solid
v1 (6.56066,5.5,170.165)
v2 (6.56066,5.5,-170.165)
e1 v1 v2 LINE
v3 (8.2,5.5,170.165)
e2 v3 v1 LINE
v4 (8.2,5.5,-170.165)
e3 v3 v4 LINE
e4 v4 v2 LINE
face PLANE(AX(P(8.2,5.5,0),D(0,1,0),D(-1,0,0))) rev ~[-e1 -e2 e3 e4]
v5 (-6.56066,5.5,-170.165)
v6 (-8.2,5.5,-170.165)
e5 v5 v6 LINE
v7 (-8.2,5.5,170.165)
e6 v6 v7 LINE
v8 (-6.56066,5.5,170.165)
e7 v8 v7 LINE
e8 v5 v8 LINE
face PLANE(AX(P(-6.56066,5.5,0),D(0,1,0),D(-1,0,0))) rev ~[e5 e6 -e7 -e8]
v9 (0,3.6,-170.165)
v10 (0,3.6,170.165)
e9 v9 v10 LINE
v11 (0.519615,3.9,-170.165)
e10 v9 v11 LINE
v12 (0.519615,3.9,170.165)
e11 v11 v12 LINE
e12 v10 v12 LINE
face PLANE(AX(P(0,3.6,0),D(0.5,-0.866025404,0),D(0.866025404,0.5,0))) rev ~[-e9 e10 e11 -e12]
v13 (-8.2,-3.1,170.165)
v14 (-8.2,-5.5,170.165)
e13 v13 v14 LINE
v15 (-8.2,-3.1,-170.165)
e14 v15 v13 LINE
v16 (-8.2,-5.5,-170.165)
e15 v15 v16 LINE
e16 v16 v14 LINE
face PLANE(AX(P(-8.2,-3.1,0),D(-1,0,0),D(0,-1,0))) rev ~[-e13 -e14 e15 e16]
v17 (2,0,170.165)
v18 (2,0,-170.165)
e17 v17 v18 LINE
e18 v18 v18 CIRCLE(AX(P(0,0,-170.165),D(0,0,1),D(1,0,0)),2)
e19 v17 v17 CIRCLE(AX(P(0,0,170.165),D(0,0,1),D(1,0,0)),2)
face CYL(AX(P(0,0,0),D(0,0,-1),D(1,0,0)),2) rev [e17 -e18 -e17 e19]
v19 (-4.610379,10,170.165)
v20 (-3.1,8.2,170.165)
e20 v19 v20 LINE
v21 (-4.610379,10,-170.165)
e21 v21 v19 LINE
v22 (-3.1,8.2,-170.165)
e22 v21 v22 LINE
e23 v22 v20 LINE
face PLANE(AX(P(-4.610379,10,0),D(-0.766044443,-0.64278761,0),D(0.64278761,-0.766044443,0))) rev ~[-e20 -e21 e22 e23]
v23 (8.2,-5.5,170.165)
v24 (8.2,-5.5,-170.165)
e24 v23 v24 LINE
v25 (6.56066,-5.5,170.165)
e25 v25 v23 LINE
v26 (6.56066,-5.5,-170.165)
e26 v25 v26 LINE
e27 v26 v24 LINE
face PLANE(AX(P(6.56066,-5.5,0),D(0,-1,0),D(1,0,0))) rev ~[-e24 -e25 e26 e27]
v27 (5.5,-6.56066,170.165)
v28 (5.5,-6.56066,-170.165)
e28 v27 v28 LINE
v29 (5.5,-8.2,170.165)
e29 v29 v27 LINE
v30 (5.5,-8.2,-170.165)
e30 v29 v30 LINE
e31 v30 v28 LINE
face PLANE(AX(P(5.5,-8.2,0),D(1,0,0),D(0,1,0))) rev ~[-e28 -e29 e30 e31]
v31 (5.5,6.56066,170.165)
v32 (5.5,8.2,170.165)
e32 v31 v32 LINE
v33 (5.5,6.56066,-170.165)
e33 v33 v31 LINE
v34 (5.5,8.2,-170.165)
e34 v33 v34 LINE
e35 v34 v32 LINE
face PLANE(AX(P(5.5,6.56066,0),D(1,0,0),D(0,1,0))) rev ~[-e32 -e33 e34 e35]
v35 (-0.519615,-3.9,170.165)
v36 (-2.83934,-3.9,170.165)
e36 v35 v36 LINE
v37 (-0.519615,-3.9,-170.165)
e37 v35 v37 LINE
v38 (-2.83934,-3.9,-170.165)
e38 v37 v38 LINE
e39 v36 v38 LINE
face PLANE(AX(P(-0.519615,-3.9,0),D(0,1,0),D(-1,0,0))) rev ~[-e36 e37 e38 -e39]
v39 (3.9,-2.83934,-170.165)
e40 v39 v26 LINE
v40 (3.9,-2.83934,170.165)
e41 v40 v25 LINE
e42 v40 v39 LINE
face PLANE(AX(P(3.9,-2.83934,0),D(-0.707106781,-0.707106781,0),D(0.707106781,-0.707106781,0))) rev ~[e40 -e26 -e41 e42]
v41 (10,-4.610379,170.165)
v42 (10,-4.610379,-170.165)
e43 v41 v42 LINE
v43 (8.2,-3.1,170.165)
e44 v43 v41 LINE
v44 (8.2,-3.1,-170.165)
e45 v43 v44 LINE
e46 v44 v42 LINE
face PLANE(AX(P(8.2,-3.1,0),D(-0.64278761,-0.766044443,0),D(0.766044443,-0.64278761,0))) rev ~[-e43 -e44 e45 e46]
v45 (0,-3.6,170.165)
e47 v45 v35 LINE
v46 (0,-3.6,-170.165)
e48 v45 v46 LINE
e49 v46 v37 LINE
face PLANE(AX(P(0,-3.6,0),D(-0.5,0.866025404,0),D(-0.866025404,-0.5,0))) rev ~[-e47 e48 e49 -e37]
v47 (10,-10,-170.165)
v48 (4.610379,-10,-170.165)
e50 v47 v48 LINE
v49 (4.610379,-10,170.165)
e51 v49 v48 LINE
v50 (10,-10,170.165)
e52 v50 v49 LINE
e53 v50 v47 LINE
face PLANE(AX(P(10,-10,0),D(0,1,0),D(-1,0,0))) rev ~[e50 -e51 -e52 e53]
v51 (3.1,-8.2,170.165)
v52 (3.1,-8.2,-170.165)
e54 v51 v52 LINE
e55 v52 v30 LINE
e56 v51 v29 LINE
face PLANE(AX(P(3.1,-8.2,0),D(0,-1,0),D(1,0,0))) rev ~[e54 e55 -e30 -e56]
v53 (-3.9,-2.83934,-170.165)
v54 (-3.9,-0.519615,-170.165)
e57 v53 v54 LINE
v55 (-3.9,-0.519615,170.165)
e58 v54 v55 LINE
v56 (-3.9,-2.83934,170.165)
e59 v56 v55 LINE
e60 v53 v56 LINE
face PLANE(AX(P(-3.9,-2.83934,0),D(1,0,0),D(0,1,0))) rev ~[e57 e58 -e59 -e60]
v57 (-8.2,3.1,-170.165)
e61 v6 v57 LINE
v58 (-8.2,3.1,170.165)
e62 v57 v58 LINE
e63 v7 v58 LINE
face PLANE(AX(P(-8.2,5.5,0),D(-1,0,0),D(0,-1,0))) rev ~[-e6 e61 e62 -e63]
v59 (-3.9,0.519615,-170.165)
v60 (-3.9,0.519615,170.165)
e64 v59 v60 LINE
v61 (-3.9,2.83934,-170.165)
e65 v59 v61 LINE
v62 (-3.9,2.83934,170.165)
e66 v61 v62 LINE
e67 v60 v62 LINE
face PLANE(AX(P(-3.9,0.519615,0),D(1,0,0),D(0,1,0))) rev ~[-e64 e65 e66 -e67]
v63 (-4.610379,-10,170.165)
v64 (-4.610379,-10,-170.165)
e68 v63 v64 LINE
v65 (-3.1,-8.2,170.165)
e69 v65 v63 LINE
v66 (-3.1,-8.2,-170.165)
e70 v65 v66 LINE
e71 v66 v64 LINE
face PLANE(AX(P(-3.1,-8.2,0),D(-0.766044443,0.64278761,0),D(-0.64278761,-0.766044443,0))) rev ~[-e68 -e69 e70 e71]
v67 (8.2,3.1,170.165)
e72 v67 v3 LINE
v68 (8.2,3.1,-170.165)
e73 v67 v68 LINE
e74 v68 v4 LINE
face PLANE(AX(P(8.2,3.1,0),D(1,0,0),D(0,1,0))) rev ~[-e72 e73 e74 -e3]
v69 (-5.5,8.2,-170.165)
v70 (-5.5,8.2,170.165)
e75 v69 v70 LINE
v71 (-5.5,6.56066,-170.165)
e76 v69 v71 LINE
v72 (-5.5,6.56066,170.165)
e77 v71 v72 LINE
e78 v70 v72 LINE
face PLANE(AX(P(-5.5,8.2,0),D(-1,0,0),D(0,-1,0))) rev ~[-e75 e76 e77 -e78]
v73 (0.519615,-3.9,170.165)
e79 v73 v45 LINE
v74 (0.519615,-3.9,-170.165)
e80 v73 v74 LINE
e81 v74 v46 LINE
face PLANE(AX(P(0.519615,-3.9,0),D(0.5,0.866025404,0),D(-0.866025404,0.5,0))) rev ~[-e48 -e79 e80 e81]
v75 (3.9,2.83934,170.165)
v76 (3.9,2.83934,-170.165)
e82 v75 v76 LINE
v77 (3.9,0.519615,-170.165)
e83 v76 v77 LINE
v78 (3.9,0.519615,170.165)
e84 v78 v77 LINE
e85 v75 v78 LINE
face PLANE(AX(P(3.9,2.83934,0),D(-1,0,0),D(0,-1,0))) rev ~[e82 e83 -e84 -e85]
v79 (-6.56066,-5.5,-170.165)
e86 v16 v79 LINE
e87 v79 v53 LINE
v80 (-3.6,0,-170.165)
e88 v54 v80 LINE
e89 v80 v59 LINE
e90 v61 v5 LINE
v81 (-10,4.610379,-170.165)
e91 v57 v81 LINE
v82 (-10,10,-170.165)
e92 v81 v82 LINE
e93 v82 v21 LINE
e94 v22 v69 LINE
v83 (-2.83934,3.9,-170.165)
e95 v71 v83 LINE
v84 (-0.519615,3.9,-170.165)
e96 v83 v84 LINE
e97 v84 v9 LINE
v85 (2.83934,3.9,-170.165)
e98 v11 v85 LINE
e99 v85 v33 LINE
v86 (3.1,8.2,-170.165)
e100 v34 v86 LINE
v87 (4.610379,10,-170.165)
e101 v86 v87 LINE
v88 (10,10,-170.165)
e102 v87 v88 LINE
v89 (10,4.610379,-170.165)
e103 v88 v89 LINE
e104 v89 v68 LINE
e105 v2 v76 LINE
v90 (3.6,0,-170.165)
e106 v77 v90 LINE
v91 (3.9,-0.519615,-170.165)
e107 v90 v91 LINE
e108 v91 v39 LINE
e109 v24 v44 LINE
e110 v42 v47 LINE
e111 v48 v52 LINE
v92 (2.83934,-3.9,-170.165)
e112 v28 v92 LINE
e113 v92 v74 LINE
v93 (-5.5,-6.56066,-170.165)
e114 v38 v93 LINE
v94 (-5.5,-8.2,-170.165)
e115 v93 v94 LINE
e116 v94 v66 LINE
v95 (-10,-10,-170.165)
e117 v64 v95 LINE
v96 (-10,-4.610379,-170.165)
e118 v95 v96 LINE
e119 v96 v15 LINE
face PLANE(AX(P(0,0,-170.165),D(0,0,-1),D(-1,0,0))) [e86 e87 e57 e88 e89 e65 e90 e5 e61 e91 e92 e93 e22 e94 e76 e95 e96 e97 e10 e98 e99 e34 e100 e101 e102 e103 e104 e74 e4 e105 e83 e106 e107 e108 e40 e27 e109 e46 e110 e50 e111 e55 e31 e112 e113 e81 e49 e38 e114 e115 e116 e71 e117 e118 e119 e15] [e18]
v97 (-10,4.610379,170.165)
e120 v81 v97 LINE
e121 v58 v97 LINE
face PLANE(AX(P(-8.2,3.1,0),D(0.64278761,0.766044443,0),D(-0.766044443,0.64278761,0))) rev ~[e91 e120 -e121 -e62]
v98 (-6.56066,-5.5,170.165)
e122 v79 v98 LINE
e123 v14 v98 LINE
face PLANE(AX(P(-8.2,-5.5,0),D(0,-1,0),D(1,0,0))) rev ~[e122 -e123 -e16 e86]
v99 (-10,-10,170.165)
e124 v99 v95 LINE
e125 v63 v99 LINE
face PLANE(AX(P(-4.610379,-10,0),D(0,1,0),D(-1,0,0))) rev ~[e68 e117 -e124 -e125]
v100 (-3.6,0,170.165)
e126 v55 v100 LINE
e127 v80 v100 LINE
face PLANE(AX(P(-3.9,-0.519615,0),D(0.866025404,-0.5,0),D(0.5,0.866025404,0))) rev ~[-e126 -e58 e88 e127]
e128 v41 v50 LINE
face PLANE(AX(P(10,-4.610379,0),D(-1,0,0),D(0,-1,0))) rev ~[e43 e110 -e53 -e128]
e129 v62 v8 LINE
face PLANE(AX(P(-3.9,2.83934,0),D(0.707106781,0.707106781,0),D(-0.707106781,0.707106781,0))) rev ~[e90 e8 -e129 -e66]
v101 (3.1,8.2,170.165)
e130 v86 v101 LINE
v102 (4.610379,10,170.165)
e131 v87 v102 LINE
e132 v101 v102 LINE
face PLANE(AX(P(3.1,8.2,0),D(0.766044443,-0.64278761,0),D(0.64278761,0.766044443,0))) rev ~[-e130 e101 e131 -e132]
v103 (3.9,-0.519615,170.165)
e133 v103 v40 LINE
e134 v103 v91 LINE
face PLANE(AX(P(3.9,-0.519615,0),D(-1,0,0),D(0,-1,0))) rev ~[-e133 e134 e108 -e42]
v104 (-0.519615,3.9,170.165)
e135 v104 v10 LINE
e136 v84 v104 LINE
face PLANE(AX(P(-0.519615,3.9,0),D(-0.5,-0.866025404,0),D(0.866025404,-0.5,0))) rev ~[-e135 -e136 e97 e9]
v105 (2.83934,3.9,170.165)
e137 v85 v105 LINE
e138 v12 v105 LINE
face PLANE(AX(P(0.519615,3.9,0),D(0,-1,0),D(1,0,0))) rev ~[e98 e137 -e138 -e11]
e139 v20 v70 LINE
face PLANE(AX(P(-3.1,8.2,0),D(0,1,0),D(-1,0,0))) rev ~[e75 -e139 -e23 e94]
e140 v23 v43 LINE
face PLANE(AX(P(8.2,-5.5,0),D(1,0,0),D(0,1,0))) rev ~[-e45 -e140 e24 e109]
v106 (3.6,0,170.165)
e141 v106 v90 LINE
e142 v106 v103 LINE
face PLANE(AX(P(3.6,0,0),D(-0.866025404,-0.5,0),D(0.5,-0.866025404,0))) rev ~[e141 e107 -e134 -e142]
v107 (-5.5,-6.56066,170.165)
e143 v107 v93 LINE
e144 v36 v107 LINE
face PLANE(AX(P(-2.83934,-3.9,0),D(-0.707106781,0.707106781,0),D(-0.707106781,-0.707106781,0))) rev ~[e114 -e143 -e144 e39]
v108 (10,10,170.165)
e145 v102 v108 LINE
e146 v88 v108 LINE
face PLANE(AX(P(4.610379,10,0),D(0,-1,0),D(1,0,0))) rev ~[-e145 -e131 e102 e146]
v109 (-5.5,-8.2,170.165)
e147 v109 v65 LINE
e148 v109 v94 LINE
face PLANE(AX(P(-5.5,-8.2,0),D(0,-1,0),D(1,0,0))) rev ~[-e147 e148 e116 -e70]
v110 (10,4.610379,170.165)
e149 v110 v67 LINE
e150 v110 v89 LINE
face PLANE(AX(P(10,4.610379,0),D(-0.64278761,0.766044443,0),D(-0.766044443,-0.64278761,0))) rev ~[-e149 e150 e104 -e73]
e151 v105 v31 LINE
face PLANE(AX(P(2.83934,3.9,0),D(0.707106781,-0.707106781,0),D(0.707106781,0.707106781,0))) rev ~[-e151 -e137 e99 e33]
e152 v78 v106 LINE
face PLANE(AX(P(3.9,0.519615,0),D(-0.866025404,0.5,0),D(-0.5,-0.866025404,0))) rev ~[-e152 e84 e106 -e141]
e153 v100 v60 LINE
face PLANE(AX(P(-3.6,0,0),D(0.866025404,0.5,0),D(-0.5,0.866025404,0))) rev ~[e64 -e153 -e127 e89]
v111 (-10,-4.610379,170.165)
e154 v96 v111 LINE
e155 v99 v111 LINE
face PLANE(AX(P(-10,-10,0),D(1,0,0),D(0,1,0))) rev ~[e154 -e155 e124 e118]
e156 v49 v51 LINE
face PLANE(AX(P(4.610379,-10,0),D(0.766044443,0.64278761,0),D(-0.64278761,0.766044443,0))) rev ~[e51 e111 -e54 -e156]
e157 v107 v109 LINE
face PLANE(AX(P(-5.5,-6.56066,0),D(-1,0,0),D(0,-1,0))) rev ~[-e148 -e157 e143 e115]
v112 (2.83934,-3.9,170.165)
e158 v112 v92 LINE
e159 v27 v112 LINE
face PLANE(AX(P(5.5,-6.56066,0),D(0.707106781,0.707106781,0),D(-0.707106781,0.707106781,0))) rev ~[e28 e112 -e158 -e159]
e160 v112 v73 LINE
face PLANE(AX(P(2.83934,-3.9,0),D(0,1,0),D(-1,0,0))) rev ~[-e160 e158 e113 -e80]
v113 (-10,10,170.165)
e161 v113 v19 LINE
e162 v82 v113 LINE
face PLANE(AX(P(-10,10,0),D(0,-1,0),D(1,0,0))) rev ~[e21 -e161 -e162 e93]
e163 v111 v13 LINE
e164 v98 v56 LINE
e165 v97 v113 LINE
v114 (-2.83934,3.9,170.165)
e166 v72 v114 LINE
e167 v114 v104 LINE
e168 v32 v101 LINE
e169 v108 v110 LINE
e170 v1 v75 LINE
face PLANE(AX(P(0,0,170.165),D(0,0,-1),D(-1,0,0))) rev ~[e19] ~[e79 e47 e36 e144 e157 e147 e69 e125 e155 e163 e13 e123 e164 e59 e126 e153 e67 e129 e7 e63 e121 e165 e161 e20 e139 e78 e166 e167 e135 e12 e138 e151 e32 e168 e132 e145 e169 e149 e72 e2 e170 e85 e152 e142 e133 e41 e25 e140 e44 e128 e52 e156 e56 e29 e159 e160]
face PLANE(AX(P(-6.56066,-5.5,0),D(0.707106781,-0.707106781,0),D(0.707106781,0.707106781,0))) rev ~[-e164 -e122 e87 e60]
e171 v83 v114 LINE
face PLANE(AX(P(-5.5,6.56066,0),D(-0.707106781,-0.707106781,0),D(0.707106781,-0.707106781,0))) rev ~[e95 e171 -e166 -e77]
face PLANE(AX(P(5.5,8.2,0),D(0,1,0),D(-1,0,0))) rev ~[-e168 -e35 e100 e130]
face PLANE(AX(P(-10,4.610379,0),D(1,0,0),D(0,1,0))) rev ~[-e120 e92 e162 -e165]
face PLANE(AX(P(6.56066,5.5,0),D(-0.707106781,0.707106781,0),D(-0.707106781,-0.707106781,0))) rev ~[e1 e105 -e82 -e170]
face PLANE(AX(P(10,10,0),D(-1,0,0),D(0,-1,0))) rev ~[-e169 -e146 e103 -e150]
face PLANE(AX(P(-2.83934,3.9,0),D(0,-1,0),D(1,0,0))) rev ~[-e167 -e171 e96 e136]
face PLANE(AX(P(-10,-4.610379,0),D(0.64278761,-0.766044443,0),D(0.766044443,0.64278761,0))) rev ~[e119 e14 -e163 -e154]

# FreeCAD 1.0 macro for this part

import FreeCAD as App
import Part
import Sketcher

V = App.Vector
Q = App.Units.Quantity


def add_polygon(sketch, points):
    """Adds a closed chain of lines whose ends are joined by coincident constraints."""
    first, n = sketch.GeometryCount, len(points)
    for a, b in zip(points, points[1:] + points[:1]):
        sketch.addGeometry(Part.LineSegment(App.Vector(*a, 0), App.Vector(*b, 0)), False)
    for i in range(n):
        sketch.addConstraint(Sketcher.Constraint("Coincident", first + i, 2, first + (i + 1) % n, 1))

doc = App.newDocument("Part")
body = doc.addObject("PartDesign::Body", "Body")

# Sketch on XY plane
sketch1 = doc.addObject("Sketcher::SketchObject", "Sketch")
body.addObject(sketch1)
sketch1.AttachmentSupport = (doc.XY_Plane, [""])
sketch1.MapMode = "FlatFace"
add_polygon(sketch1, [(10, 4.6), (10, 10), (4.6, 10), (3.1, 8.2), (5.5, 8.2), (5.5, 6.6), (2.8, 3.9), (0.5, 3.9), (0, 3.6), (-0.5, 3.9), (-2.8, 3.9), (-5.5, 6.6), (-5.5, 8.2), (-3.1, 8.2), (-4.6, 10), (-10, 10), (-10, 4.6), (-8.2, 3.1), (-8.2, 5.5), (-6.6, 5.5), (-3.9, 2.8), (-3.9, 0.5), (-3.6, 0), (-3.9, -0.5), (-3.9, -2.8), (-6.6, -5.5), (-8.2, -5.5), (-8.2, -3.1), (-10, -4.6), (-10, -10), (-4.6, -10), (-3.1, -8.2), (-5.5, -8.2), (-5.5, -6.6), (-2.8, -3.9), (-0.5, -3.9), (0, -3.6), (0.5, -3.9), (2.8, -3.9), (5.5, -6.6), (5.5, -8.2), (3.1, -8.2), (4.6, -10), (10, -10), (10, -4.6), (8.2, -3.1), (8.2, -5.5), (6.6, -5.5), (3.9, -2.8), (3.9, -0.5), (3.6, 0), (3.9, 0.5), (3.9, 2.8), (6.6, 5.5), (8.2, 5.5), (8.2, 3.1)])  # lines 0-55
sketch1.addGeometry(Part.Circle(V(0, 0, 0), V(0, 0, 1), 2), False)  # 56
sketch1.addConstraint([
    Sketcher.Constraint("Vertical", 0),
    Sketcher.Constraint("Horizontal", 1),
    Sketcher.Constraint("Horizontal", 3),
    Sketcher.Constraint("Vertical", 4),
    Sketcher.Constraint("Horizontal", 6),
    Sketcher.Constraint("Horizontal", 9),
    Sketcher.Constraint("Vertical", 11),
    Sketcher.Constraint("Horizontal", 12),
    Sketcher.Constraint("Horizontal", 14),
    Sketcher.Constraint("Vertical", 15),
    Sketcher.Constraint("Vertical", 17),
    Sketcher.Constraint("Horizontal", 18),
    Sketcher.Constraint("Vertical", 20),
    Sketcher.Constraint("Vertical", 23),
    Sketcher.Constraint("Horizontal", 25),
    Sketcher.Constraint("Vertical", 26),
    Sketcher.Constraint("Vertical", 28),
    Sketcher.Constraint("Horizontal", 29),
    Sketcher.Constraint("Horizontal", 31),
    Sketcher.Constraint("Vertical", 32),
    Sketcher.Constraint("Horizontal", 34),
    Sketcher.Constraint("Horizontal", 37),
    Sketcher.Constraint("Vertical", 39),
    Sketcher.Constraint("Horizontal", 40),
    Sketcher.Constraint("Horizontal", 42),
    Sketcher.Constraint("Vertical", 43),
    Sketcher.Constraint("Vertical", 45),
    Sketcher.Constraint("Horizontal", 46),
    Sketcher.Constraint("Vertical", 48),
    Sketcher.Constraint("Vertical", 51),
    Sketcher.Constraint("Horizontal", 53),
    Sketcher.Constraint("Vertical", 54),
    Sketcher.Constraint("Coincident", 56, 3, -1, 1),
    Sketcher.Constraint("Symmetric", 0, 2, 28, 2, -1, 1),
    Sketcher.Constraint("Symmetric", 2, 2, 30, 2, -1, 1),
    Sketcher.Constraint("Symmetric", 4, 2, 32, 2, -1, 1),
    Sketcher.Constraint("Symmetric", 5, 2, 33, 2, -1, 1),
    Sketcher.Constraint("Symmetric", 7, 2, 35, 2, -1, 1),
    Sketcher.Constraint("Symmetric", 8, 2, 36, 2, -1, 1),
    Sketcher.Constraint("Symmetric", 10, 2, 38, 2, -1, 1),
    Sketcher.Constraint("Symmetric", 12, 2, 40, 2, -1, 1),
    Sketcher.Constraint("Symmetric", 13, 2, 41, 2, -1, 1),
    Sketcher.Constraint("Symmetric", 15, 2, 43, 2, -1, 1),
    Sketcher.Constraint("Symmetric", 16, 2, 44, 2, -1, 1),
    Sketcher.Constraint("Symmetric", 18, 2, 46, 2, -1, 1),
    Sketcher.Constraint("Symmetric", 19, 2, 47, 2, -1, 1),
    Sketcher.Constraint("Symmetric", 21, 2, 49, 2, -1, 1),
    Sketcher.Constraint("Symmetric", 22, 2, 50, 2, -1, 1),
    Sketcher.Constraint("Symmetric", 24, 2, 52, 2, -1, 1),
    Sketcher.Constraint("Symmetric", 26, 2, 54, 2, -1, 1),
    Sketcher.Constraint("Symmetric", 6, 2, 8, 2, -2),
    Sketcher.Constraint("Symmetric", 4, 2, 10, 2, -2),
    Sketcher.Constraint("Symmetric", 2, 2, 12, 2, -2),
    Sketcher.Constraint("Symmetric", 1, 2, 13, 2, -2),
    Sketcher.Constraint("Symmetric", 27, 2, 43, 2, -2),
    Sketcher.Constraint("Symmetric", 26, 2, 44, 2, -2),
    Sketcher.Constraint("Symmetric", 24, 2, 46, 2, -2),
    Sketcher.Constraint("Symmetric", 23, 2, 47, 2, -2),
    Sketcher.Constraint("PointOnObject", 7, 2, -2),
    Sketcher.Constraint("PointOnObject", 21, 2, -1),
    Sketcher.Constraint("Perpendicular", 5, 10),
    Sketcher.Constraint("Perpendicular", 2, 16),
    Sketcher.Constraint("Parallel", 10, 19),
    Sketcher.Constraint("Perpendicular", 7, 21),
    Sketcher.Constraint("Perpendicular", 8, 22),
    Sketcher.Constraint("Perpendicular", 19, 24),
    Sketcher.Constraint("Perpendicular", 16, 30),
    Sketcher.Constraint("Perpendicular", 21, 35),
    Sketcher.Constraint("Perpendicular", 33, 38),
    Sketcher.Constraint("Perpendicular", 35, 49),
    Sketcher.Constraint("Perpendicular", 47, 52),
    Sketcher.Constraint("Perpendicular", 41, 55),
    Sketcher.Constraint("Equal", 42, 0),
    Sketcher.Constraint("Equal", 53, 4),
    Sketcher.Constraint("Equal", 40, 17),
    Sketcher.Constraint("Equal", 37, 20),
    Sketcher.Constraint("Equal", 13, 16),
    Sketcher.Constraint("Equal", 10, 19),
    Sketcher.Constraint("Equal", 8, 21),
    Sketcher.Constraint("Diameter", 56, Q("4 mm")),
    Sketcher.Constraint("Angle", 2, Q("-130 deg")),
    Sketcher.Constraint("Angle", 7, Q("-150 deg")),
    Sketcher.Constraint("DistanceX", 3, 1, 3, 2, Q("2.4 mm")),
    Sketcher.Constraint("DistanceX", -1, 1, 0, 2, Q("10 mm")),
    Sketcher.Constraint("Distance", 7, Q("0.6 mm")),
    Sketcher.Constraint("DistanceX", -1, 1, 2, 2, Q("3.1 mm")),
    Sketcher.Constraint("DistanceY", -1, 1, 2, 2, Q("8.2 mm")),
    Sketcher.Constraint("DistanceY", -1, 1, 5, 2, Q("3.9 mm")),
    Sketcher.Constraint("DistanceX", 18, 1, 18, 2, Q("1.63934 mm")),
])
pad1 = doc.addObject("PartDesign::Pad", "Pad")
body.addObject(pad1)
pad1.Profile = sketch1
pad1.Length = 340.33
pad1.Midplane = True

doc.recompute()
